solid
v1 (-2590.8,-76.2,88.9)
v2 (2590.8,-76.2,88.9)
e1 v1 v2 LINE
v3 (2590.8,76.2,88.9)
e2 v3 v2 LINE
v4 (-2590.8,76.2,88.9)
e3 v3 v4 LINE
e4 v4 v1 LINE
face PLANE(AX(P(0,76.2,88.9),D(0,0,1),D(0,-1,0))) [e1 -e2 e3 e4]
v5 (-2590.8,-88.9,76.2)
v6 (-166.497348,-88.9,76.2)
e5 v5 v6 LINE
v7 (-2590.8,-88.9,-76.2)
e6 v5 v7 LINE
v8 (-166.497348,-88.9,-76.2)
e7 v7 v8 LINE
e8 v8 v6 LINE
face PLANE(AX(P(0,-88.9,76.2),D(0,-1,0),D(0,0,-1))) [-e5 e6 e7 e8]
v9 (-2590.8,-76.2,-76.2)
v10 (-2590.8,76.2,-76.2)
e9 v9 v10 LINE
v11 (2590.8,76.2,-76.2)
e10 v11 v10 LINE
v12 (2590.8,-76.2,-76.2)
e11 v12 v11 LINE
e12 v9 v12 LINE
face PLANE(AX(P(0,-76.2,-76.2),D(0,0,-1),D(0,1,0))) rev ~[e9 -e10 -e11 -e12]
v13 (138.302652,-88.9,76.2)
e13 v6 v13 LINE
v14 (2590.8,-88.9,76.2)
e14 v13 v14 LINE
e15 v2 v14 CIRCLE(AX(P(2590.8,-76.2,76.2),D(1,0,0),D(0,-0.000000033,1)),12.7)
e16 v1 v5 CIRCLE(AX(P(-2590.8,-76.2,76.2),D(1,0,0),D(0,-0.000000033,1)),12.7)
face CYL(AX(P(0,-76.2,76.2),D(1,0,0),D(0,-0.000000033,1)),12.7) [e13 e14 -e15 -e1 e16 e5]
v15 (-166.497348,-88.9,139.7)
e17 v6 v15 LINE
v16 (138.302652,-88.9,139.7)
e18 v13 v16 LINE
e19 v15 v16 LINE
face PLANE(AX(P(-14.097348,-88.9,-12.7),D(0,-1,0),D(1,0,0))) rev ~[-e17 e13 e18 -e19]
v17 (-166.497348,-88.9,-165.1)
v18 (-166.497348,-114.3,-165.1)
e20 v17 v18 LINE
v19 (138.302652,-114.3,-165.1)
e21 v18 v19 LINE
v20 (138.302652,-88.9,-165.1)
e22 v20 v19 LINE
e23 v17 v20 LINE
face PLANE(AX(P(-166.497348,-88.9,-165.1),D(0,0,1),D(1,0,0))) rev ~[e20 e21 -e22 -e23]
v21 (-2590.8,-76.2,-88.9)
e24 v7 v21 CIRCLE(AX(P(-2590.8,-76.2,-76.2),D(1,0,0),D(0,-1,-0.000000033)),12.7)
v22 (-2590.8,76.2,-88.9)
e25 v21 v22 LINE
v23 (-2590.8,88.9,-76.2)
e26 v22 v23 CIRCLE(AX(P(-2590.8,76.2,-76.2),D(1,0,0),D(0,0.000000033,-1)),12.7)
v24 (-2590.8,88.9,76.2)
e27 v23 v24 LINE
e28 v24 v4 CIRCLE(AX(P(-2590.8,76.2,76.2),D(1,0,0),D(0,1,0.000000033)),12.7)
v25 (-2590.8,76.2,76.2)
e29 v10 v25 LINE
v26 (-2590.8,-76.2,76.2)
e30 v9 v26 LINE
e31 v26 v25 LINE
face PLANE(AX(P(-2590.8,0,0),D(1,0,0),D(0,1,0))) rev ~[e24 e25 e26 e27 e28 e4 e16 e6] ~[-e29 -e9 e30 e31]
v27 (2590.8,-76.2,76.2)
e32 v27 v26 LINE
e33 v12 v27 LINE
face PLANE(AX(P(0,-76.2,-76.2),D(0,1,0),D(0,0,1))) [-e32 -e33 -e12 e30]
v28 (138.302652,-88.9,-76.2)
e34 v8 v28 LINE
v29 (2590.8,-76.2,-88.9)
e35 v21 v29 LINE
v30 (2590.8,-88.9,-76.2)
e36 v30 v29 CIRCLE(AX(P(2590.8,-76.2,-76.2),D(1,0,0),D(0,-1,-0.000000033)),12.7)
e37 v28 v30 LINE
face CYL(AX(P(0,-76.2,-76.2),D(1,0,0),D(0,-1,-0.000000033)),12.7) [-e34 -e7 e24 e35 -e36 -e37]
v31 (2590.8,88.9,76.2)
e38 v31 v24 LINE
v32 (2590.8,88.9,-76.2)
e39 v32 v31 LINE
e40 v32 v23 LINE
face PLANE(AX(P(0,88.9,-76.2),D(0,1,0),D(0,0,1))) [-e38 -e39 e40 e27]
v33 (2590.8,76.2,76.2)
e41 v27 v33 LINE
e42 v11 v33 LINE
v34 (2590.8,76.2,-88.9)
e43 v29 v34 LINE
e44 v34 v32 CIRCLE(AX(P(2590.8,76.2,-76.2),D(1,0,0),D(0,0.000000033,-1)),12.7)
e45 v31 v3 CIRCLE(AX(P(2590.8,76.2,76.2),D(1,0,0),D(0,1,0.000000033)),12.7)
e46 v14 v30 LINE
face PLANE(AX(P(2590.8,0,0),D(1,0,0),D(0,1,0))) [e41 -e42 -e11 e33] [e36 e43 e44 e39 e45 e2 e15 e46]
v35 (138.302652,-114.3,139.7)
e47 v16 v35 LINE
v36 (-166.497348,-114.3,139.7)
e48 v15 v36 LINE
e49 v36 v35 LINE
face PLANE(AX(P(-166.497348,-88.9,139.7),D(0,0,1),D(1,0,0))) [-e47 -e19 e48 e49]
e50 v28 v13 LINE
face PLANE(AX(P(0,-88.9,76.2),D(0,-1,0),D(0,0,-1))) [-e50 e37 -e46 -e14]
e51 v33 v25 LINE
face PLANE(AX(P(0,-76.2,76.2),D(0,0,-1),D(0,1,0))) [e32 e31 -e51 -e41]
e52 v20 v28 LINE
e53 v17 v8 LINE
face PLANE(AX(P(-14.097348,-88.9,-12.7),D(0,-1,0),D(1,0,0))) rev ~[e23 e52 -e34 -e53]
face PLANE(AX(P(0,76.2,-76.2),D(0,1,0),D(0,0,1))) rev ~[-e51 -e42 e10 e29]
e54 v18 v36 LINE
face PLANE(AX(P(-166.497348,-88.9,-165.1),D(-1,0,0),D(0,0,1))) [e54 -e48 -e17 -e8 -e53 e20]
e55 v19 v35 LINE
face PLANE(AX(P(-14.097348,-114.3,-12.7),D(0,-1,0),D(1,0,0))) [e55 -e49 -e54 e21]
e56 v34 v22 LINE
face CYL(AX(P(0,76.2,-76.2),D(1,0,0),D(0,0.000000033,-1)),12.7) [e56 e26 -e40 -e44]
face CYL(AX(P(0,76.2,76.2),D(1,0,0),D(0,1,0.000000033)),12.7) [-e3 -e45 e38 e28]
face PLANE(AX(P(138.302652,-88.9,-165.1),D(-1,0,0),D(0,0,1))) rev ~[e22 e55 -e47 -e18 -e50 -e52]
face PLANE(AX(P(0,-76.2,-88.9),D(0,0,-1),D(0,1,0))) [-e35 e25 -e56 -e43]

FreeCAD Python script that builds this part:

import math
import FreeCAD as App
import Part
import Sketcher
Q = App.Units.Quantity

doc = App.newDocument("Part")
body = doc.addObject("PartDesign::Body", "Body")

sketch1 = doc.addObject("Sketcher::SketchObject", "Sketch")
body.addObject(sketch1)
sketch1.AttachmentSupport = (doc.YZ_Plane, [""])
sketch1.MapMode = "FlatFace"
sketch1.addGeometry([
    Part.LineSegment(App.Vector(76, 89, 0), App.Vector(-76, 89, 0)),
    Part.ArcOfCircle(Part.Circle(App.Vector(-76, 76, 0), App.Vector(0, 0, 1), 13), math.radians(90), math.radians(180)),
    Part.LineSegment(App.Vector(-89, 76, 0), App.Vector(-89, -76, 0)),
    Part.ArcOfCircle(Part.Circle(App.Vector(-76, -76, 0), App.Vector(0, 0, 1), 13), math.radians(-180), math.radians(-90)),
    Part.LineSegment(App.Vector(-76, -89, 0), App.Vector(76, -89, 0)),
    Part.ArcOfCircle(Part.Circle(App.Vector(76, -76, 0), App.Vector(0, 0, 1), 13), math.radians(-90), math.radians(0)),
    Part.LineSegment(App.Vector(89, -76, 0), App.Vector(89, 76, 0)),
    Part.ArcOfCircle(Part.Circle(App.Vector(76, 76, 0), App.Vector(0, 0, 1), 13), math.radians(0), math.radians(90)),
    Part.LineSegment(App.Vector(76, -76, 0), App.Vector(-76, -76, 0)),
    Part.LineSegment(App.Vector(-76, -76, 0), App.Vector(-76, 76, 0)),
    Part.LineSegment(App.Vector(-76, 76, 0), App.Vector(76, 76, 0)),
    Part.LineSegment(App.Vector(76, 76, 0), App.Vector(76, -76, 0)),
], False)
sketch1.addConstraint([
    Sketcher.Constraint("Tangent", 0, 2, 1, 1),
    Sketcher.Constraint("Tangent", 1, 2, 2, 1),
    Sketcher.Constraint("Tangent", 2, 2, 3, 1),
    Sketcher.Constraint("Tangent", 3, 2, 4, 1),
    Sketcher.Constraint("Tangent", 4, 2, 5, 1),
    Sketcher.Constraint("Tangent", 5, 2, 6, 1),
    Sketcher.Constraint("Tangent", 6, 2, 7, 1),
    Sketcher.Constraint("Tangent", 7, 2, 0, 1),
    Sketcher.Constraint("Coincident", 8, 2, 9, 1),
    Sketcher.Constraint("Coincident", 9, 2, 10, 1),
    Sketcher.Constraint("Coincident", 10, 2, 11, 1),
    Sketcher.Constraint("Coincident", 11, 2, 8, 1),
    Sketcher.Constraint("Horizontal", 0),
    Sketcher.Constraint("Vertical", 2),
    Sketcher.Constraint("Horizontal", 4),
    Sketcher.Constraint("Vertical", 6),
    Sketcher.Constraint("Horizontal", 8),
    Sketcher.Constraint("Vertical", 9),
    Sketcher.Constraint("Horizontal", 10),
    Sketcher.Constraint("Vertical", 11),
    Sketcher.Constraint("Coincident", 8, 2, 3, 3),
    Sketcher.Constraint("Coincident", 9, 2, 1, 3),
    Sketcher.Constraint("Coincident", 10, 2, 7, 3),
    Sketcher.Constraint("Equal", 3, 5),
    Sketcher.Constraint("Symmetric", 1, 3, 5, 3, -1, 1),
    Sketcher.Constraint("Equal", 10, 2),
    Sketcher.Constraint("Radius", 1, Q("0.5 in")),
    Sketcher.Constraint("DistanceX", 0, 2, 0, 1, Q("6 in")),
])
pad1 = doc.addObject("PartDesign::Pad", "Pad")
body.addObject(pad1)
pad1.Profile = sketch1
pad1.Length = Q("204 in")
pad1.Midplane = True

sketch2 = doc.addObject("Sketcher::SketchObject", "Sketch001")
body.addObject(sketch2)
sketch2.AttachmentSupport = (doc.XZ_Plane, [""])
sketch2.MapMode = "FlatFace"
sketch2.AttachmentOffset = App.Placement(App.Vector(0, 0, 3.5 * 25.4), App.Rotation())
sketch2.addGeometry([
    Part.LineSegment(App.Vector(-166, 140, 0), App.Vector(-166, -165, 0)),
    Part.LineSegment(App.Vector(-166, -165, 0), App.Vector(138, -165, 0)),
    Part.LineSegment(App.Vector(138, -165, 0), App.Vector(138, 140, 0)),
    Part.LineSegment(App.Vector(138, 140, 0), App.Vector(-166, 140, 0)),
], False)
sketch2.addConstraint([
    Sketcher.Constraint("Coincident", 0, 2, 1, 1),
    Sketcher.Constraint("Coincident", 1, 2, 2, 1),
    Sketcher.Constraint("Coincident", 2, 2, 3, 1),
    Sketcher.Constraint("Coincident", 3, 2, 0, 1),
    Sketcher.Constraint("Vertical", 0),
    Sketcher.Constraint("Horizontal", 1),
    Sketcher.Constraint("Vertical", 2),
    Sketcher.Constraint("Horizontal", 3),
    Sketcher.Constraint("Equal", 3, 0),
    Sketcher.Constraint("DistanceX", 1, 1, 1, 2, Q("12 in")),
    Sketcher.Constraint("DistanceY", 0, 2, -1, 1, Q("6.5 in")),
    Sketcher.Constraint("DistanceX", -1, 1, 1, 2, Q("138.302652 mm")),
])
pad2 = doc.addObject("PartDesign::Pad", "Pad001")
body.addObject(pad2)
pad2.Profile = sketch2
pad2.Length = Q("1 in")

doc.recompute()
